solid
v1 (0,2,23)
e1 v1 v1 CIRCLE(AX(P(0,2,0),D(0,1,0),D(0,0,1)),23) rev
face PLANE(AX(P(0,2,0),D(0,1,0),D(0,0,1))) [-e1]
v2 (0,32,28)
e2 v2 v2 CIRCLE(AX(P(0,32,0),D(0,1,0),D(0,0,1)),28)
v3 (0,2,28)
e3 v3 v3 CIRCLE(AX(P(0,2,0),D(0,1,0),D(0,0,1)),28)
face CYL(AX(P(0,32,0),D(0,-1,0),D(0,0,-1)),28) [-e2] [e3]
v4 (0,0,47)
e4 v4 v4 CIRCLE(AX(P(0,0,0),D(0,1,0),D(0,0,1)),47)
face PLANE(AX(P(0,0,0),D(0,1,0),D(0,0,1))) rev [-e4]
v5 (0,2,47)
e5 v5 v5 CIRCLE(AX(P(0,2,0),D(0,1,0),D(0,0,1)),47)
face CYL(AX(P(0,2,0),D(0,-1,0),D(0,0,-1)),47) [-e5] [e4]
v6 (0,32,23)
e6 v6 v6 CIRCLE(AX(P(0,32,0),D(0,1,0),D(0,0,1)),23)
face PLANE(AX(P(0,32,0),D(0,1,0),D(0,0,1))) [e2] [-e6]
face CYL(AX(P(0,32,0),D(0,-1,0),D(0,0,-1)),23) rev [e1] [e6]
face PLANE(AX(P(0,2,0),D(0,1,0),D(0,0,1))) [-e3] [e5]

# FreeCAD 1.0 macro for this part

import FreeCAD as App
import Part
import Sketcher

V = App.Vector

doc = App.newDocument("Part")
params = doc.addObject("Spreadsheet::Sheet", "Params")
for row, (alias, value) in enumerate([
    ("sketch1_diameter", "94 mm"),
    ("pad1_length", "2 mm"),
    ("sketch2_diameter", "56 mm"),
    ("sketch2_diameter2", "46 mm"),
    ("pad2_length", "30 mm"),
], start=1):
    params.set(f"A{row}", alias)
    params.set(f"B{row}", "=" + value)
    params.setAlias(f"B{row}", alias)

body = doc.addObject("PartDesign::Body", "Body")

# Sketch on XZ plane
sketch1 = body.newObject("Sketcher::SketchObject", "Sketch")
sketch1.AttachmentSupport = (doc.getObject("XZ_Plane"), [""])
sketch1.MapMode = "FlatFace"
sketch1.addGeometry(Part.Circle(V(0, 0, 0), V(0, 0, 1), 47), False)
sketch1.addConstraint([
    Sketcher.Constraint("Coincident", 0, 3, -1, 1),
    Sketcher.Constraint("Diameter", 0, 94.0),
])
sketch1.setExpression("Constraints[1]", "Params.sketch1_diameter")
pad1 = body.newObject("PartDesign::Pad", "Pad")
pad1.Profile = sketch1
pad1.setExpression("Length", "Params.pad1_length")
pad1.Reversed = True

# Sketch on XZ plane
sketch2 = body.newObject("Sketcher::SketchObject", "Sketch001")
sketch2.AttachmentSupport = (doc.getObject("XZ_Plane"), [""])
sketch2.MapMode = "FlatFace"
sketch2.AttachmentOffset = App.Placement(V(0, 0, -2), App.Rotation())
sketch2.addGeometry([
    Part.Circle(V(0, 0, 0), V(0, 0, 1), 28),
    Part.Circle(V(0, 0, 0), V(0, 0, 1), 23),
], False)
sketch2.addConstraint([
    Sketcher.Constraint("Coincident", 0, 3, -1, 1),
    Sketcher.Constraint("Coincident", 1, 3, -1, 1),
    Sketcher.Constraint("Diameter", 0, 56.0),
    Sketcher.Constraint("Diameter", 1, 46.0),
])
sketch2.setExpression("Constraints[2]", "Params.sketch2_diameter")
sketch2.setExpression("Constraints[3]", "Params.sketch2_diameter2")
pad2 = body.newObject("PartDesign::Pad", "Pad001")
pad2.Profile = sketch2
pad2.setExpression("Length", "Params.pad2_length")
pad2.Reversed = True

doc.recompute()
